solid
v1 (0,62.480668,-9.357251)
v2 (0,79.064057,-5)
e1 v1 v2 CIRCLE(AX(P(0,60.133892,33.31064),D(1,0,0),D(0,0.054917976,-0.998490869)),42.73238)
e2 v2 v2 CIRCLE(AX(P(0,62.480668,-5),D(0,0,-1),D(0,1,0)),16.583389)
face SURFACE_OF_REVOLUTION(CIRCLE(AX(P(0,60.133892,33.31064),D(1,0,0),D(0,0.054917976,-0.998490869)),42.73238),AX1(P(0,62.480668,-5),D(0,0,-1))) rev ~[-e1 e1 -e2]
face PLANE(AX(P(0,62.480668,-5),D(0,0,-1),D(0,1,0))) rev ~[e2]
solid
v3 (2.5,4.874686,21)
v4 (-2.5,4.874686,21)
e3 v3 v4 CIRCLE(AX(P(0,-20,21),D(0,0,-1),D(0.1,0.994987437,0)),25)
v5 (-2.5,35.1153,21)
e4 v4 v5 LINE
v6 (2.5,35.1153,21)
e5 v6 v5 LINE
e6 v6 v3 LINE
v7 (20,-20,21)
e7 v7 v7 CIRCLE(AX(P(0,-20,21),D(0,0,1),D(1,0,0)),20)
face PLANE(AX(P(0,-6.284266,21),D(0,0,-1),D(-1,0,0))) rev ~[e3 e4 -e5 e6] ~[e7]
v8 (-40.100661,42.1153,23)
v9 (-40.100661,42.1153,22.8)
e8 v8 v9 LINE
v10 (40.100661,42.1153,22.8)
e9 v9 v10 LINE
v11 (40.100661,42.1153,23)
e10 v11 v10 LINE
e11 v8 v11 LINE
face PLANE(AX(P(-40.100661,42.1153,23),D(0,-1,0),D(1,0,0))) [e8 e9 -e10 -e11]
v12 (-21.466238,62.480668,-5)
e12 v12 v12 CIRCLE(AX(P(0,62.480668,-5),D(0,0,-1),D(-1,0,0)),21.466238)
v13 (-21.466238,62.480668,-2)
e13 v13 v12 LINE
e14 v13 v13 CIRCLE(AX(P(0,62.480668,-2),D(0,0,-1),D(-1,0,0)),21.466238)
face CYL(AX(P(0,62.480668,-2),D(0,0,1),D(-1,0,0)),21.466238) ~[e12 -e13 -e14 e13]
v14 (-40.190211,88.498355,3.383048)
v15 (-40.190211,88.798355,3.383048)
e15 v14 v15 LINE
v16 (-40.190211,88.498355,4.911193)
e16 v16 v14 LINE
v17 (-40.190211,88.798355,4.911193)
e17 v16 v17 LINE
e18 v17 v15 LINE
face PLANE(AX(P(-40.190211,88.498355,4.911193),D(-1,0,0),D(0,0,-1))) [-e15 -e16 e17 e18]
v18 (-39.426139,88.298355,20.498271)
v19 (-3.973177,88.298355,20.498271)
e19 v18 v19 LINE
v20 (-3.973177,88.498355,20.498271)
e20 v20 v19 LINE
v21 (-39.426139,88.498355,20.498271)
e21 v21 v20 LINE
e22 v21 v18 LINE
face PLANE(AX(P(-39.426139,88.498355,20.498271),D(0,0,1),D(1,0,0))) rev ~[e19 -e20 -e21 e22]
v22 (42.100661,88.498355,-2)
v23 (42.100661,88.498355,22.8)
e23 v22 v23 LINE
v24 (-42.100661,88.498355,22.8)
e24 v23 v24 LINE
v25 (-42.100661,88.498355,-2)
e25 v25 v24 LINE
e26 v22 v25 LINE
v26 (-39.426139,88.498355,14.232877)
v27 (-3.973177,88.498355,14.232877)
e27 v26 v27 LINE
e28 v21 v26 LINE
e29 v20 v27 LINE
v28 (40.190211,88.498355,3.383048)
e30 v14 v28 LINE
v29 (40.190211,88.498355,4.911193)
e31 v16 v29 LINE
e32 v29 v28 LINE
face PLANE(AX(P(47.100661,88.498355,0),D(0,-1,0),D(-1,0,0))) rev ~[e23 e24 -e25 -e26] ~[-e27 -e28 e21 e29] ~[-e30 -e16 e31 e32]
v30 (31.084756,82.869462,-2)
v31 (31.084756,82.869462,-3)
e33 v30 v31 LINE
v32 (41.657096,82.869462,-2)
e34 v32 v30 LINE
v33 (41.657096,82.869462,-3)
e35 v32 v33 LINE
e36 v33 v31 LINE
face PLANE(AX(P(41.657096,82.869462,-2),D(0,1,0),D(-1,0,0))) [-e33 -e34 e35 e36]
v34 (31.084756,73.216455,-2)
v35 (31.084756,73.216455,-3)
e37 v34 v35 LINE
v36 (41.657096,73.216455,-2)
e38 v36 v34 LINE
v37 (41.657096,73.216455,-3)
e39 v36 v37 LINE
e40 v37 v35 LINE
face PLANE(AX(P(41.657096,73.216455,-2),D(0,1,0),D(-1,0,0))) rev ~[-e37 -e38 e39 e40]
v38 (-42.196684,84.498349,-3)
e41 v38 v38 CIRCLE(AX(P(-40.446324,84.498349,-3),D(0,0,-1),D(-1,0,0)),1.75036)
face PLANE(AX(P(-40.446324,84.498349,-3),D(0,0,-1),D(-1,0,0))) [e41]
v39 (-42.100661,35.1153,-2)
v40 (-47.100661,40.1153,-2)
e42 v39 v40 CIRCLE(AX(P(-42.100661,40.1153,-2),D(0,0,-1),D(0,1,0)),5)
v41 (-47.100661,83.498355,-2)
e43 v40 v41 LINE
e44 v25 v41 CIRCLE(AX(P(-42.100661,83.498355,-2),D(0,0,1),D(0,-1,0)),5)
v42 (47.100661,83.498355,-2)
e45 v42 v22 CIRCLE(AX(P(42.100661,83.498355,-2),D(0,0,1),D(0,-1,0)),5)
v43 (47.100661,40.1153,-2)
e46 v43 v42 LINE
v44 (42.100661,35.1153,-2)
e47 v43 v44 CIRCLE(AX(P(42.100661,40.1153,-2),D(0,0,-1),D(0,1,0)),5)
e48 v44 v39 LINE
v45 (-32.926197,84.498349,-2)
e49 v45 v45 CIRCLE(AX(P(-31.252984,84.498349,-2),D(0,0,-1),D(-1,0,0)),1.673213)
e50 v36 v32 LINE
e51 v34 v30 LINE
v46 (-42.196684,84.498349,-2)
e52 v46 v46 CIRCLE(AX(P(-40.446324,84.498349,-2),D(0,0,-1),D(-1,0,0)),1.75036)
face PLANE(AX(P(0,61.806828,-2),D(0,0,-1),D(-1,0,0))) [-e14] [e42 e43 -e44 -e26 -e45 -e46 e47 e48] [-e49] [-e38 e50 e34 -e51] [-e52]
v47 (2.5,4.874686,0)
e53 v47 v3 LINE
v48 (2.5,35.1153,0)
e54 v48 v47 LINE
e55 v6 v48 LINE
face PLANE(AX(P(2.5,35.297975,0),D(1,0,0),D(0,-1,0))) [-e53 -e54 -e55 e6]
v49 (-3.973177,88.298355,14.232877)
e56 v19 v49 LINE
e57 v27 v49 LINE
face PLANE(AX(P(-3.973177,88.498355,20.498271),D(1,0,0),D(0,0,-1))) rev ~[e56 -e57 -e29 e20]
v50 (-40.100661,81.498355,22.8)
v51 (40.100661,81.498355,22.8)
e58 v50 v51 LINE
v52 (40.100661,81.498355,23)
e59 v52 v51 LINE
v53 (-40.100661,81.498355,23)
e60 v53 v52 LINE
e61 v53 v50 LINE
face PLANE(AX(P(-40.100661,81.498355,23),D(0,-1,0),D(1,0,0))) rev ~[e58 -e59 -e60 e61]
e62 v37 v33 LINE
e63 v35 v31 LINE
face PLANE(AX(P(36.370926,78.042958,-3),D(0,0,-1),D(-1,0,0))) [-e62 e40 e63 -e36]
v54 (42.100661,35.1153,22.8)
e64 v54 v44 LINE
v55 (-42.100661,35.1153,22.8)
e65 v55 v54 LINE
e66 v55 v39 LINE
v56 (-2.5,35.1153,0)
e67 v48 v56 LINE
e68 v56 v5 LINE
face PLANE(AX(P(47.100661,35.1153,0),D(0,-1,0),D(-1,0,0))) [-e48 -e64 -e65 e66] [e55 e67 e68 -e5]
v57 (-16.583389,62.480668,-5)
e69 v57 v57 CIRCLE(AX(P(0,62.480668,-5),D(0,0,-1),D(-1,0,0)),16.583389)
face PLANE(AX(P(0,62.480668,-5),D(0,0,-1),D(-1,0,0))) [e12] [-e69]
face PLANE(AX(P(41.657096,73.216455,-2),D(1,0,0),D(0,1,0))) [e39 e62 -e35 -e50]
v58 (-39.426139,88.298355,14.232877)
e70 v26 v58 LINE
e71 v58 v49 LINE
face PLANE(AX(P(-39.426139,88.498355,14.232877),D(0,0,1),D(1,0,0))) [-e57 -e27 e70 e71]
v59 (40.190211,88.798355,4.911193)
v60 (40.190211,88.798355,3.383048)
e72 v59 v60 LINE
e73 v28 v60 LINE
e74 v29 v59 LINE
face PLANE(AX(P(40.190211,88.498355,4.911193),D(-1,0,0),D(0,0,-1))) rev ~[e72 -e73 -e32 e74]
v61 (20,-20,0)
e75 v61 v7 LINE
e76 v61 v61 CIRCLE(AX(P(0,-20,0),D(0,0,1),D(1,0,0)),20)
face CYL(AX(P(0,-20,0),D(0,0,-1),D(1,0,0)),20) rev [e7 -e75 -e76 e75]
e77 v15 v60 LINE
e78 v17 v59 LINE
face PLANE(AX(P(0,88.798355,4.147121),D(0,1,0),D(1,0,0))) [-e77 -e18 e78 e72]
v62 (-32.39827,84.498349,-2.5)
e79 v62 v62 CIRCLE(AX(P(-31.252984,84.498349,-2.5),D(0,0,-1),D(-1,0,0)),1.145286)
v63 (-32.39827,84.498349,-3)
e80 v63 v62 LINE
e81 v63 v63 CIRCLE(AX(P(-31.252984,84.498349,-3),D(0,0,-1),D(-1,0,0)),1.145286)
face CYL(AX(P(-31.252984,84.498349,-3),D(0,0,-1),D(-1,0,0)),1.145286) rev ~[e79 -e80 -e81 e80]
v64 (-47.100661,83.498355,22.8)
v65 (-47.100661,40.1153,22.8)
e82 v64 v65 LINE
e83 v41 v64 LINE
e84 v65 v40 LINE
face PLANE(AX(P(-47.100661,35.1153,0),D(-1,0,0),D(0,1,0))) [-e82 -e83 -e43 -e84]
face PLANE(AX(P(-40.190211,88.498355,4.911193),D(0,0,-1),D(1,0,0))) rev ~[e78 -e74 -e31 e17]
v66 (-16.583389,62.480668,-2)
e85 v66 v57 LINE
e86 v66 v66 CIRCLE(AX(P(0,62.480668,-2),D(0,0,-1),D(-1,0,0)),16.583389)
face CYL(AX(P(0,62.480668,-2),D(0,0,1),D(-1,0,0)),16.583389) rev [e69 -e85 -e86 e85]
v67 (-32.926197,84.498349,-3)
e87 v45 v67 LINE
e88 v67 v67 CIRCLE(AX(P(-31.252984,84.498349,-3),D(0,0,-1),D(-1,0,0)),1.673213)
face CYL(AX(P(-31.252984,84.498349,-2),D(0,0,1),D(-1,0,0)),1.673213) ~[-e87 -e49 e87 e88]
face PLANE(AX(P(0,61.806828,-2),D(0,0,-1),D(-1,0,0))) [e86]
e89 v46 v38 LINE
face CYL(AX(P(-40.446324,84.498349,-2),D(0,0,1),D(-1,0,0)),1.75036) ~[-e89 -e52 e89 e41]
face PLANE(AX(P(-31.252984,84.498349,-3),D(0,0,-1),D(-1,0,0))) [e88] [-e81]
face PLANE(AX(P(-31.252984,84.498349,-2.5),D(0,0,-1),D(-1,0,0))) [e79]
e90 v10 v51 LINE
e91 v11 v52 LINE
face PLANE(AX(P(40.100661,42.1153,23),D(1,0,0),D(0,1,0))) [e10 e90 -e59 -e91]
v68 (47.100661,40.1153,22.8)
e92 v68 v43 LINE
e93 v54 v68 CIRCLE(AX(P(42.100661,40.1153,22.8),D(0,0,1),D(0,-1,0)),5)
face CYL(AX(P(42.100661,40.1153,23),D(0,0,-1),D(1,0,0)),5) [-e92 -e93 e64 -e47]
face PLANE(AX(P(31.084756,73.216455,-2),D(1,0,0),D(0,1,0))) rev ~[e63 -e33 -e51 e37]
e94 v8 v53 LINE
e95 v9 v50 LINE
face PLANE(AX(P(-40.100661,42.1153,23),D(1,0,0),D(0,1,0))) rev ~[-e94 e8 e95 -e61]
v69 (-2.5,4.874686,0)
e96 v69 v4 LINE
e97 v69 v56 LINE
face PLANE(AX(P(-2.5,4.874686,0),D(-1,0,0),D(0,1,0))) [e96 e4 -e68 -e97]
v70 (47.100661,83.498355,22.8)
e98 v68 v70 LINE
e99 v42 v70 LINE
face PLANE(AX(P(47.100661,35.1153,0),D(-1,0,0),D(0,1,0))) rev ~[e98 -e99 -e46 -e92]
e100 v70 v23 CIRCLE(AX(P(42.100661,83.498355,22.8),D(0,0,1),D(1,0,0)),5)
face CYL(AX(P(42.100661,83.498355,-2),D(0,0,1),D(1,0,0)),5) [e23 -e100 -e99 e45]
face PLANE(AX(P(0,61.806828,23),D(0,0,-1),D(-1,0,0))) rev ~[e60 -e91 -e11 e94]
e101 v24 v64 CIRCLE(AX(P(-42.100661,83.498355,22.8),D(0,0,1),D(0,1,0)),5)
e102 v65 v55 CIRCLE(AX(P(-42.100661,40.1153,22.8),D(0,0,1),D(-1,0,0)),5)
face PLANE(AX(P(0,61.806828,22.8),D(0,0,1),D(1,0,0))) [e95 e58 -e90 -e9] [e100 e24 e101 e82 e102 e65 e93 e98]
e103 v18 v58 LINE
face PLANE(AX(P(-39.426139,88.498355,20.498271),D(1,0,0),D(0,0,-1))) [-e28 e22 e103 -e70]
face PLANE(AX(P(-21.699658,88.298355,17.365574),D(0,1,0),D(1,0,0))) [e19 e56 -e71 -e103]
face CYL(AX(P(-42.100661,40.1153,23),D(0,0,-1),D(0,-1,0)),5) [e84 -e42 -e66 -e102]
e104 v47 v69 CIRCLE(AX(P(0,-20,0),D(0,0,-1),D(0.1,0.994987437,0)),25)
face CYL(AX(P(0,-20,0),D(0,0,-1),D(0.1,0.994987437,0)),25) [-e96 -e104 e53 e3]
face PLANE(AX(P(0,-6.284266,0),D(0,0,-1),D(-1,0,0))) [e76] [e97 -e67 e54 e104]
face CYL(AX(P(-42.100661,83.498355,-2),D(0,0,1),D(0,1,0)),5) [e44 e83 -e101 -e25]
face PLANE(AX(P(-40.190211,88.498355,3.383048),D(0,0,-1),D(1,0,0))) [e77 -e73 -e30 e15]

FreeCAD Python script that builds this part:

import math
import FreeCAD as App
import Part
import Sketcher
from FreeCAD import Vector
Q = App.Units.Quantity


def edges_at(feature, points):
    """Names of the edges that pass closest to the given points."""
    edges = feature.Shape.Edges
    near = lambda p: min(range(len(edges)), key=lambda i: edges[i].distToShape(Part.Vertex(*p))[0])
    return sorted({f"Edge{near(p) + 1}" for p in points})


def add_polygon(sketch, points):
    """Adds a closed chain of lines whose ends are joined by coincident constraints."""
    first, n = sketch.GeometryCount, len(points)
    for a, b in zip(points, points[1:] + points[:1]):
        sketch.addGeometry(Part.LineSegment(App.Vector(*a, 0), App.Vector(*b, 0)), False)
    for i in range(n):
        sketch.addConstraint(Sketcher.Constraint("Coincident", first + i, 2, first + (i + 1) % n, 1))

doc = App.newDocument("Part")
body = doc.addObject("PartDesign::Body", "Body")

sketch1 = doc.addObject("Sketcher::SketchObject", "Sketch")
body.addObject(sketch1)
sketch1.AttachmentSupport = (doc.XY_Plane, [""])
sketch1.MapMode = "FlatFace"
sketch1.addGeometry([
    Part.LineSegment(Vector(-2, 35, 0), Vector(-2, 5, 0)),
    Part.ArcOfCircle(Part.Circle(Vector(0, -20, 0), Vector(0, 0, 1), 25), math.radians(96), math.radians(444)),
    Part.LineSegment(Vector(2, 5, 0), Vector(2, 35, 0)),
    Part.LineSegment(Vector(2, 35, 0), Vector(-2, 35, 0)),
    Part.Circle(Vector(0, -20, 0), Vector(0, 0, 1), 20),
], False)
sketch1.addConstraint([
    Sketcher.Constraint("Coincident", 0, 2, 1, 1),
    Sketcher.Constraint("Coincident", 1, 2, 2, 1),
    Sketcher.Constraint("Coincident", 2, 2, 3, 1),
    Sketcher.Constraint("Coincident", 3, 2, 0, 1),
    Sketcher.Constraint("Vertical", 0),
    Sketcher.Constraint("Vertical", 2),
    Sketcher.Constraint("Horizontal", 3),
    Sketcher.Constraint("Coincident", 4, 3, 1, 3),
    Sketcher.Constraint("Symmetric", 0, 2, 1, 2, -2),
    Sketcher.Constraint("Diameter", 4, Q("40 mm")),
    Sketcher.Constraint("Radius", 1, Q("25 mm")),
    Sketcher.Constraint("DistanceX", 3, 2, 3, 1, Q("5 mm")),
    Sketcher.Constraint("DistanceY", 1, 3, -1, 1, Q("20 mm")),
    Sketcher.Constraint("DistanceY", 0, 2, 0, 1, Q("30.423289 mm")),
])
pad1 = doc.addObject("PartDesign::Pad", "Pad")
body.addObject(pad1)
pad1.Profile = sketch1
pad1.Length = 21

sketch2 = doc.addObject("Sketcher::SketchObject", "Sketch001")
body.addObject(sketch2)
sketch2.AttachmentSupport = (doc.XY_Plane, [""])
sketch2.MapMode = "FlatFace"
add_polygon(sketch2, [(47, 88), (47, 35), (-47, 35), (-47, 88)])
sketch2.addConstraint([
    Sketcher.Constraint("Vertical", 0),
    Sketcher.Constraint("Horizontal", 1),
    Sketcher.Constraint("Vertical", 2),
    Sketcher.Constraint("Horizontal", 3),
    Sketcher.Constraint("DistanceX", 1, 2, 1, 1, Q("94.201321 mm")),
    Sketcher.Constraint("DistanceY", -1, 1, 0, 2, Q("35.1153 mm")),
    Sketcher.Constraint("DistanceY", 0, 2, 0, 1, Q("53.383054 mm")),
    Sketcher.Constraint("DistanceX", -1, 1, 0, 2, Q("47.100661 mm")),
])
pad2 = doc.addObject("PartDesign::Pad", "Pad001")
body.addObject(pad2)
pad2.Profile = sketch2
pad2.Type = "TwoLengths"
pad2.Length = 2
pad2.Length2 = 23
pad2.Reversed = True

sketch3 = doc.addObject("Sketcher::SketchObject", "Sketch002")
body.addObject(sketch3)
sketch3.AttachmentSupport = (doc.XY_Plane, [""])
sketch3.MapMode = "FlatFace"
sketch3.AttachmentOffset = App.Placement(Vector(0, 0, -2), App.Rotation())
sketch3.addGeometry([
    Part.Circle(Vector(0, 62, 0), Vector(0, 0, 1), 21),
    Part.Circle(Vector(0, 62, 0), Vector(0, 0, 1), 17),
], False)
sketch3.addConstraint([
    Sketcher.Constraint("Coincident", 1, 3, 0, 3),
    Sketcher.Constraint("PointOnObject", 0, 3, -2),
    Sketcher.Constraint("Diameter", 1, Q("33.166778 mm")),
    Sketcher.Constraint("Diameter", 0, Q("42.932477 mm")),
    Sketcher.Constraint("DistanceY", -1, 1, 0, 3, Q("62.480668 mm")),
])
pad3 = doc.addObject("PartDesign::Pad", "Pad002")
body.addObject(pad3)
pad3.Profile = sketch3
pad3.Length = 3
pad3.Reversed = True

sketch4 = doc.addObject("Sketcher::SketchObject", "Sketch003")
body.addObject(sketch4)
sketch4.AttachmentSupport = (doc.XY_Plane, [""])
sketch4.MapMode = "FlatFace"
sketch4.AttachmentOffset = App.Placement(Vector(0, 0, -2), App.Rotation())
sketch4.addGeometry(Part.Circle(Vector(-31.3, 84.5, 0), Vector(0, 0, 1), 1.7), False)
sketch4.addGeometry(Part.Circle(Vector(-40.4, 84.5, 0), Vector(0, 0, 1), 1.8), False)
add_polygon(sketch4, [(41.7, 82.9), (41.7, 73.2), (31.1, 73.2), (31.1, 82.9)])
sketch4.addConstraint([
    Sketcher.Constraint("Vertical", 2),
    Sketcher.Constraint("Horizontal", 3),
    Sketcher.Constraint("Vertical", 4),
    Sketcher.Constraint("Horizontal", 5),
    Sketcher.Constraint("Horizontal", 0, 3, 1, 3),
    Sketcher.Constraint("Diameter", 1, Q("3.50072 mm")),
    Sketcher.Constraint("Diameter", 0, Q("3.346426 mm")),
    Sketcher.Constraint("DistanceX", 3, 2, 3, 1, Q("10.572341 mm")),
    Sketcher.Constraint("DistanceY", 2, 2, 2, 1, Q("9.653007 mm")),
    Sketcher.Constraint("DistanceY", -1, 1, 0, 3, Q("84.498349 mm")),
    Sketcher.Constraint("DistanceY", -1, 1, 4, 2, Q("82.869462 mm")),
    Sketcher.Constraint("DistanceX", 1, 3, 0, 3, Q("9.19334 mm")),
    Sketcher.Constraint("DistanceX", 0, 3, 2, 2, Q("72.910081 mm")),
    Sketcher.Constraint("DistanceX", 0, 3, -1, 1, Q("31.252984 mm")),
])
pad4 = doc.addObject("PartDesign::Pad", "Pad003")
body.addObject(pad4)
pad4.Profile = sketch4
pad4.Length = 1
pad4.Reversed = True

sketch5 = doc.addObject("Sketcher::SketchObject", "Sketch004")
body.addObject(sketch5)
sketch5.AttachmentSupport = (doc.XY_Plane, [""])
sketch5.MapMode = "FlatFace"
sketch5.AttachmentOffset = App.Placement(Vector(0, 0, -3), App.Rotation())
sketch5.addGeometry(Part.Circle(Vector(-31.3, 84.5, 0), Vector(0, 0, 1), 1.1), False)
sketch5.addConstraint([
    Sketcher.Constraint("Diameter", 0, Q("2.290572 mm")),
    Sketcher.Constraint("DistanceY", -1, 1, 0, 3, Q("84.498349 mm")),
    Sketcher.Constraint("DistanceX", 0, 3, -1, 1, Q("31.252984 mm")),
])
pocket1 = doc.addObject("PartDesign::Pocket", "Pocket")
body.addObject(pocket1)
pocket1.Profile = sketch5
pocket1.Length = 0.5
pocket1.Reversed = True
doc.recompute()

fillet = doc.addObject("PartDesign::Fillet", "Fillet")
body.addObject(fillet)
fillet.Base = (pocket1, edges_at(pocket1, [
    (47.101, 35.115, 10.5),
    (-47.101, 35.115, 10.5),
    (-47.101, 88.498, 10.5),
    (47.101, 88.498, 10.5),
]))
fillet.Radius = 5

sketch6 = doc.addObject("Sketcher::SketchObject", "Sketch005")
body.addObject(sketch6)
sketch6.AttachmentSupport = (doc.XZ_Plane, [""])
sketch6.MapMode = "FlatFace"
sketch6.AttachmentOffset = App.Placement(Vector(0, 0, -88.498355), App.Rotation())
add_polygon(sketch6, [(-40.2, 3.4), (-40.2, 4.9), (40.2, 4.9), (40.2, 3.4)])
sketch6.addConstraint([
    Sketcher.Constraint("Vertical", 0),
    Sketcher.Constraint("Horizontal", 1),
    Sketcher.Constraint("Vertical", 2),
    Sketcher.Constraint("Horizontal", 3),
    Sketcher.Constraint("DistanceX", 1, 1, 1, 2, Q("80.380423 mm")),
    Sketcher.Constraint("DistanceY", 0, 1, 0, 2, Q("1.528145 mm")),
    Sketcher.Constraint("DistanceX", 0, 2, -1, 1, Q("40.190211 mm")),
    Sketcher.Constraint("DistanceY", -1, 1, 2, 2, Q("3.383048 mm")),
])
pad5 = doc.addObject("PartDesign::Pad", "Pad004")
body.addObject(pad5)
pad5.Profile = sketch6
pad5.Length = 0.3
pad5.Reversed = True

sketch7 = doc.addObject("Sketcher::SketchObject", "Sketch006")
body.addObject(sketch7)
sketch7.AttachmentSupport = (doc.XZ_Plane, [""])
sketch7.MapMode = "FlatFace"
sketch7.AttachmentOffset = App.Placement(Vector(0, 0, -88.498355), App.Rotation())
add_polygon(sketch7, [(-39, 14), (-39, 20), (-4, 20), (-4, 14)])
sketch7.addConstraint([
    Sketcher.Constraint("Vertical", 0),
    Sketcher.Constraint("Horizontal", 1),
    Sketcher.Constraint("Vertical", 2),
    Sketcher.Constraint("Horizontal", 3),
    Sketcher.Constraint("DistanceX", 1, 1, 1, 2, Q("35.452962 mm")),
    Sketcher.Constraint("DistanceY", 0, 1, 0, 2, Q("6.265394 mm")),
    Sketcher.Constraint("DistanceX", 0, 2, -1, 1, Q("39.426139 mm")),
    Sketcher.Constraint("DistanceY", -1, 1, 0, 2, Q("20.498271 mm")),
])
pocket2 = doc.addObject("PartDesign::Pocket", "Pocket001")
body.addObject(pocket2)
pocket2.Profile = sketch7
pocket2.Length = 0.2
pocket2.Reversed = True

sketch8 = doc.addObject("Sketcher::SketchObject", "Sketch007")
body.addObject(sketch8)
sketch8.AttachmentSupport = (doc.XY_Plane, [""])
sketch8.MapMode = "FlatFace"
sketch8.AttachmentOffset = App.Placement(Vector(0, 0, 23), App.Rotation())
sketch8.addGeometry(Part.LineSegment(Vector(-47, 83, 0), Vector(-47, 40, 0)), False)
sketch8.addGeometry(Part.ArcOfCircle(Part.Circle(Vector(-42, 40, 0), Vector(0, 0, 1), 5), math.radians(180), math.radians(270)), False)
sketch8.addGeometry(Part.LineSegment(Vector(-42, 35, 0), Vector(42, 35, 0)), False)
sketch8.addGeometry(Part.ArcOfCircle(Part.Circle(Vector(42, 40, 0), Vector(0, 0, 1), 5), math.radians(-90), math.radians(0)), False)
sketch8.addGeometry(Part.LineSegment(Vector(47, 40, 0), Vector(47, 83, 0)), False)
sketch8.addGeometry(Part.ArcOfCircle(Part.Circle(Vector(42, 83, 0), Vector(0, 0, 1), 5), math.radians(0), math.radians(90)), False)
sketch8.addGeometry(Part.LineSegment(Vector(42, 88, 0), Vector(-42, 88, 0)), False)
sketch8.addGeometry(Part.ArcOfCircle(Part.Circle(Vector(-42, 83, 0), Vector(0, 0, 1), 5), math.radians(90), math.radians(180)), False)
add_polygon(sketch8, [(40, 42), (-40, 42), (-40, 81), (40, 81)])
sketch8.addConstraint([
    Sketcher.Constraint("Tangent", 0, 2, 1, 1),
    Sketcher.Constraint("Tangent", 1, 2, 2, 1),
    Sketcher.Constraint("Tangent", 2, 2, 3, 1),
    Sketcher.Constraint("Tangent", 3, 2, 4, 1),
    Sketcher.Constraint("Tangent", 4, 2, 5, 1),
    Sketcher.Constraint("Tangent", 5, 2, 6, 1),
    Sketcher.Constraint("Tangent", 6, 2, 7, 1),
    Sketcher.Constraint("Tangent", 7, 2, 0, 1),
    Sketcher.Constraint("Vertical", 0),
    Sketcher.Constraint("Horizontal", 2),
    Sketcher.Constraint("Vertical", 4),
    Sketcher.Constraint("Horizontal", 6),
    Sketcher.Constraint("Horizontal", 8),
    Sketcher.Constraint("Vertical", 9),
    Sketcher.Constraint("Horizontal", 10),
    Sketcher.Constraint("Vertical", 11),
    Sketcher.Constraint("Equal", 1, 3),
    Sketcher.Constraint("Equal", 3, 5),
    Sketcher.Constraint("Equal", 5, 7),
    Sketcher.Constraint("Radius", 1, Q("5 mm")),
    Sketcher.Constraint("DistanceX", 1, 3, 8, 2, Q("2 mm")),
    Sketcher.Constraint("DistanceY", 1, 3, 8, 2, Q("2 mm")),
    Sketcher.Constraint("DistanceY", 9, 2, 7, 3, Q("2 mm")),
    Sketcher.Constraint("DistanceX", 10, 2, 5, 3, Q("2 mm")),
    Sketcher.Constraint("DistanceX", 2, 1, 2, 2, Q("84.201321 mm")),
    Sketcher.Constraint("DistanceY", -1, 1, 1, 3, Q("40.1153 mm")),
    Sketcher.Constraint("DistanceY", 0, 2, 0, 1, Q("43.383054 mm")),
    Sketcher.Constraint("DistanceX", 1, 3, -1, 1, Q("42.100661 mm")),
])
pocket3 = doc.addObject("PartDesign::Pocket", "Pocket002")
body.addObject(pocket3)
pocket3.Profile = sketch8
pocket3.Length = 0.2
body2 = doc.addObject("PartDesign::Body", "Body001")

sketch9 = doc.addObject("Sketcher::SketchObject", "Sketch008")
body2.addObject(sketch9)
sketch9.AttachmentSupport = (doc.getObject("YZ_Plane001"), [""])
sketch9.MapMode = "FlatFace"
sketch9.addGeometry([
    Part.LineSegment(Vector(79.1, -5, 0), Vector(62.5, -5, 0)),
    Part.LineSegment(Vector(62.5, -5, 0), Vector(62.5, -9.4, 0)),
    Part.ArcOfCircle(Part.Circle(Vector(60.1, 33.3, 0), Vector(0, 0, 1), 42.7), math.radians(-87), math.radians(-64)),
], False)
sketch9.addGeometry(Part.LineSegment(Vector(62.5, 33.3, 0), Vector(62.5, -9.4, 0)), True)
sketch9.addConstraint([
    Sketcher.Constraint("Coincident", 0, 2, 1, 1),
    Sketcher.Constraint("Coincident", 1, 2, 2, 1),
    Sketcher.Constraint("Coincident", 2, 2, 0, 1),
    Sketcher.Constraint("Horizontal", 0),
    Sketcher.Constraint("Vertical", 1),
    Sketcher.Constraint("Vertical", 3),
    Sketcher.Constraint("Coincident", 3, 2, 1, 2),
    Sketcher.Constraint("Horizontal", 2, 3, 3, 1),
    Sketcher.Constraint("DistanceY", 0, 2, -1, 1, Q("5 mm")),
    Sketcher.Constraint("Radius", 2, Q("42.73238 mm")),
    Sketcher.Constraint("DistanceX", 0, 2, 0, 1, Q("16.583389 mm")),
    Sketcher.Constraint("DistanceY", 1, 2, 1, 1, Q("4.357251 mm")),
    Sketcher.Constraint("DistanceX", -1, 1, 2, 3, Q("60.133892 mm")),
])
revolution = doc.addObject("PartDesign::Revolution", "Revolution")
body2.addObject(revolution)
revolution.Profile = sketch9
revolution.ReferenceAxis = (sketch9, ["Axis0"])
revolution.Angle = 360

doc.recompute()
